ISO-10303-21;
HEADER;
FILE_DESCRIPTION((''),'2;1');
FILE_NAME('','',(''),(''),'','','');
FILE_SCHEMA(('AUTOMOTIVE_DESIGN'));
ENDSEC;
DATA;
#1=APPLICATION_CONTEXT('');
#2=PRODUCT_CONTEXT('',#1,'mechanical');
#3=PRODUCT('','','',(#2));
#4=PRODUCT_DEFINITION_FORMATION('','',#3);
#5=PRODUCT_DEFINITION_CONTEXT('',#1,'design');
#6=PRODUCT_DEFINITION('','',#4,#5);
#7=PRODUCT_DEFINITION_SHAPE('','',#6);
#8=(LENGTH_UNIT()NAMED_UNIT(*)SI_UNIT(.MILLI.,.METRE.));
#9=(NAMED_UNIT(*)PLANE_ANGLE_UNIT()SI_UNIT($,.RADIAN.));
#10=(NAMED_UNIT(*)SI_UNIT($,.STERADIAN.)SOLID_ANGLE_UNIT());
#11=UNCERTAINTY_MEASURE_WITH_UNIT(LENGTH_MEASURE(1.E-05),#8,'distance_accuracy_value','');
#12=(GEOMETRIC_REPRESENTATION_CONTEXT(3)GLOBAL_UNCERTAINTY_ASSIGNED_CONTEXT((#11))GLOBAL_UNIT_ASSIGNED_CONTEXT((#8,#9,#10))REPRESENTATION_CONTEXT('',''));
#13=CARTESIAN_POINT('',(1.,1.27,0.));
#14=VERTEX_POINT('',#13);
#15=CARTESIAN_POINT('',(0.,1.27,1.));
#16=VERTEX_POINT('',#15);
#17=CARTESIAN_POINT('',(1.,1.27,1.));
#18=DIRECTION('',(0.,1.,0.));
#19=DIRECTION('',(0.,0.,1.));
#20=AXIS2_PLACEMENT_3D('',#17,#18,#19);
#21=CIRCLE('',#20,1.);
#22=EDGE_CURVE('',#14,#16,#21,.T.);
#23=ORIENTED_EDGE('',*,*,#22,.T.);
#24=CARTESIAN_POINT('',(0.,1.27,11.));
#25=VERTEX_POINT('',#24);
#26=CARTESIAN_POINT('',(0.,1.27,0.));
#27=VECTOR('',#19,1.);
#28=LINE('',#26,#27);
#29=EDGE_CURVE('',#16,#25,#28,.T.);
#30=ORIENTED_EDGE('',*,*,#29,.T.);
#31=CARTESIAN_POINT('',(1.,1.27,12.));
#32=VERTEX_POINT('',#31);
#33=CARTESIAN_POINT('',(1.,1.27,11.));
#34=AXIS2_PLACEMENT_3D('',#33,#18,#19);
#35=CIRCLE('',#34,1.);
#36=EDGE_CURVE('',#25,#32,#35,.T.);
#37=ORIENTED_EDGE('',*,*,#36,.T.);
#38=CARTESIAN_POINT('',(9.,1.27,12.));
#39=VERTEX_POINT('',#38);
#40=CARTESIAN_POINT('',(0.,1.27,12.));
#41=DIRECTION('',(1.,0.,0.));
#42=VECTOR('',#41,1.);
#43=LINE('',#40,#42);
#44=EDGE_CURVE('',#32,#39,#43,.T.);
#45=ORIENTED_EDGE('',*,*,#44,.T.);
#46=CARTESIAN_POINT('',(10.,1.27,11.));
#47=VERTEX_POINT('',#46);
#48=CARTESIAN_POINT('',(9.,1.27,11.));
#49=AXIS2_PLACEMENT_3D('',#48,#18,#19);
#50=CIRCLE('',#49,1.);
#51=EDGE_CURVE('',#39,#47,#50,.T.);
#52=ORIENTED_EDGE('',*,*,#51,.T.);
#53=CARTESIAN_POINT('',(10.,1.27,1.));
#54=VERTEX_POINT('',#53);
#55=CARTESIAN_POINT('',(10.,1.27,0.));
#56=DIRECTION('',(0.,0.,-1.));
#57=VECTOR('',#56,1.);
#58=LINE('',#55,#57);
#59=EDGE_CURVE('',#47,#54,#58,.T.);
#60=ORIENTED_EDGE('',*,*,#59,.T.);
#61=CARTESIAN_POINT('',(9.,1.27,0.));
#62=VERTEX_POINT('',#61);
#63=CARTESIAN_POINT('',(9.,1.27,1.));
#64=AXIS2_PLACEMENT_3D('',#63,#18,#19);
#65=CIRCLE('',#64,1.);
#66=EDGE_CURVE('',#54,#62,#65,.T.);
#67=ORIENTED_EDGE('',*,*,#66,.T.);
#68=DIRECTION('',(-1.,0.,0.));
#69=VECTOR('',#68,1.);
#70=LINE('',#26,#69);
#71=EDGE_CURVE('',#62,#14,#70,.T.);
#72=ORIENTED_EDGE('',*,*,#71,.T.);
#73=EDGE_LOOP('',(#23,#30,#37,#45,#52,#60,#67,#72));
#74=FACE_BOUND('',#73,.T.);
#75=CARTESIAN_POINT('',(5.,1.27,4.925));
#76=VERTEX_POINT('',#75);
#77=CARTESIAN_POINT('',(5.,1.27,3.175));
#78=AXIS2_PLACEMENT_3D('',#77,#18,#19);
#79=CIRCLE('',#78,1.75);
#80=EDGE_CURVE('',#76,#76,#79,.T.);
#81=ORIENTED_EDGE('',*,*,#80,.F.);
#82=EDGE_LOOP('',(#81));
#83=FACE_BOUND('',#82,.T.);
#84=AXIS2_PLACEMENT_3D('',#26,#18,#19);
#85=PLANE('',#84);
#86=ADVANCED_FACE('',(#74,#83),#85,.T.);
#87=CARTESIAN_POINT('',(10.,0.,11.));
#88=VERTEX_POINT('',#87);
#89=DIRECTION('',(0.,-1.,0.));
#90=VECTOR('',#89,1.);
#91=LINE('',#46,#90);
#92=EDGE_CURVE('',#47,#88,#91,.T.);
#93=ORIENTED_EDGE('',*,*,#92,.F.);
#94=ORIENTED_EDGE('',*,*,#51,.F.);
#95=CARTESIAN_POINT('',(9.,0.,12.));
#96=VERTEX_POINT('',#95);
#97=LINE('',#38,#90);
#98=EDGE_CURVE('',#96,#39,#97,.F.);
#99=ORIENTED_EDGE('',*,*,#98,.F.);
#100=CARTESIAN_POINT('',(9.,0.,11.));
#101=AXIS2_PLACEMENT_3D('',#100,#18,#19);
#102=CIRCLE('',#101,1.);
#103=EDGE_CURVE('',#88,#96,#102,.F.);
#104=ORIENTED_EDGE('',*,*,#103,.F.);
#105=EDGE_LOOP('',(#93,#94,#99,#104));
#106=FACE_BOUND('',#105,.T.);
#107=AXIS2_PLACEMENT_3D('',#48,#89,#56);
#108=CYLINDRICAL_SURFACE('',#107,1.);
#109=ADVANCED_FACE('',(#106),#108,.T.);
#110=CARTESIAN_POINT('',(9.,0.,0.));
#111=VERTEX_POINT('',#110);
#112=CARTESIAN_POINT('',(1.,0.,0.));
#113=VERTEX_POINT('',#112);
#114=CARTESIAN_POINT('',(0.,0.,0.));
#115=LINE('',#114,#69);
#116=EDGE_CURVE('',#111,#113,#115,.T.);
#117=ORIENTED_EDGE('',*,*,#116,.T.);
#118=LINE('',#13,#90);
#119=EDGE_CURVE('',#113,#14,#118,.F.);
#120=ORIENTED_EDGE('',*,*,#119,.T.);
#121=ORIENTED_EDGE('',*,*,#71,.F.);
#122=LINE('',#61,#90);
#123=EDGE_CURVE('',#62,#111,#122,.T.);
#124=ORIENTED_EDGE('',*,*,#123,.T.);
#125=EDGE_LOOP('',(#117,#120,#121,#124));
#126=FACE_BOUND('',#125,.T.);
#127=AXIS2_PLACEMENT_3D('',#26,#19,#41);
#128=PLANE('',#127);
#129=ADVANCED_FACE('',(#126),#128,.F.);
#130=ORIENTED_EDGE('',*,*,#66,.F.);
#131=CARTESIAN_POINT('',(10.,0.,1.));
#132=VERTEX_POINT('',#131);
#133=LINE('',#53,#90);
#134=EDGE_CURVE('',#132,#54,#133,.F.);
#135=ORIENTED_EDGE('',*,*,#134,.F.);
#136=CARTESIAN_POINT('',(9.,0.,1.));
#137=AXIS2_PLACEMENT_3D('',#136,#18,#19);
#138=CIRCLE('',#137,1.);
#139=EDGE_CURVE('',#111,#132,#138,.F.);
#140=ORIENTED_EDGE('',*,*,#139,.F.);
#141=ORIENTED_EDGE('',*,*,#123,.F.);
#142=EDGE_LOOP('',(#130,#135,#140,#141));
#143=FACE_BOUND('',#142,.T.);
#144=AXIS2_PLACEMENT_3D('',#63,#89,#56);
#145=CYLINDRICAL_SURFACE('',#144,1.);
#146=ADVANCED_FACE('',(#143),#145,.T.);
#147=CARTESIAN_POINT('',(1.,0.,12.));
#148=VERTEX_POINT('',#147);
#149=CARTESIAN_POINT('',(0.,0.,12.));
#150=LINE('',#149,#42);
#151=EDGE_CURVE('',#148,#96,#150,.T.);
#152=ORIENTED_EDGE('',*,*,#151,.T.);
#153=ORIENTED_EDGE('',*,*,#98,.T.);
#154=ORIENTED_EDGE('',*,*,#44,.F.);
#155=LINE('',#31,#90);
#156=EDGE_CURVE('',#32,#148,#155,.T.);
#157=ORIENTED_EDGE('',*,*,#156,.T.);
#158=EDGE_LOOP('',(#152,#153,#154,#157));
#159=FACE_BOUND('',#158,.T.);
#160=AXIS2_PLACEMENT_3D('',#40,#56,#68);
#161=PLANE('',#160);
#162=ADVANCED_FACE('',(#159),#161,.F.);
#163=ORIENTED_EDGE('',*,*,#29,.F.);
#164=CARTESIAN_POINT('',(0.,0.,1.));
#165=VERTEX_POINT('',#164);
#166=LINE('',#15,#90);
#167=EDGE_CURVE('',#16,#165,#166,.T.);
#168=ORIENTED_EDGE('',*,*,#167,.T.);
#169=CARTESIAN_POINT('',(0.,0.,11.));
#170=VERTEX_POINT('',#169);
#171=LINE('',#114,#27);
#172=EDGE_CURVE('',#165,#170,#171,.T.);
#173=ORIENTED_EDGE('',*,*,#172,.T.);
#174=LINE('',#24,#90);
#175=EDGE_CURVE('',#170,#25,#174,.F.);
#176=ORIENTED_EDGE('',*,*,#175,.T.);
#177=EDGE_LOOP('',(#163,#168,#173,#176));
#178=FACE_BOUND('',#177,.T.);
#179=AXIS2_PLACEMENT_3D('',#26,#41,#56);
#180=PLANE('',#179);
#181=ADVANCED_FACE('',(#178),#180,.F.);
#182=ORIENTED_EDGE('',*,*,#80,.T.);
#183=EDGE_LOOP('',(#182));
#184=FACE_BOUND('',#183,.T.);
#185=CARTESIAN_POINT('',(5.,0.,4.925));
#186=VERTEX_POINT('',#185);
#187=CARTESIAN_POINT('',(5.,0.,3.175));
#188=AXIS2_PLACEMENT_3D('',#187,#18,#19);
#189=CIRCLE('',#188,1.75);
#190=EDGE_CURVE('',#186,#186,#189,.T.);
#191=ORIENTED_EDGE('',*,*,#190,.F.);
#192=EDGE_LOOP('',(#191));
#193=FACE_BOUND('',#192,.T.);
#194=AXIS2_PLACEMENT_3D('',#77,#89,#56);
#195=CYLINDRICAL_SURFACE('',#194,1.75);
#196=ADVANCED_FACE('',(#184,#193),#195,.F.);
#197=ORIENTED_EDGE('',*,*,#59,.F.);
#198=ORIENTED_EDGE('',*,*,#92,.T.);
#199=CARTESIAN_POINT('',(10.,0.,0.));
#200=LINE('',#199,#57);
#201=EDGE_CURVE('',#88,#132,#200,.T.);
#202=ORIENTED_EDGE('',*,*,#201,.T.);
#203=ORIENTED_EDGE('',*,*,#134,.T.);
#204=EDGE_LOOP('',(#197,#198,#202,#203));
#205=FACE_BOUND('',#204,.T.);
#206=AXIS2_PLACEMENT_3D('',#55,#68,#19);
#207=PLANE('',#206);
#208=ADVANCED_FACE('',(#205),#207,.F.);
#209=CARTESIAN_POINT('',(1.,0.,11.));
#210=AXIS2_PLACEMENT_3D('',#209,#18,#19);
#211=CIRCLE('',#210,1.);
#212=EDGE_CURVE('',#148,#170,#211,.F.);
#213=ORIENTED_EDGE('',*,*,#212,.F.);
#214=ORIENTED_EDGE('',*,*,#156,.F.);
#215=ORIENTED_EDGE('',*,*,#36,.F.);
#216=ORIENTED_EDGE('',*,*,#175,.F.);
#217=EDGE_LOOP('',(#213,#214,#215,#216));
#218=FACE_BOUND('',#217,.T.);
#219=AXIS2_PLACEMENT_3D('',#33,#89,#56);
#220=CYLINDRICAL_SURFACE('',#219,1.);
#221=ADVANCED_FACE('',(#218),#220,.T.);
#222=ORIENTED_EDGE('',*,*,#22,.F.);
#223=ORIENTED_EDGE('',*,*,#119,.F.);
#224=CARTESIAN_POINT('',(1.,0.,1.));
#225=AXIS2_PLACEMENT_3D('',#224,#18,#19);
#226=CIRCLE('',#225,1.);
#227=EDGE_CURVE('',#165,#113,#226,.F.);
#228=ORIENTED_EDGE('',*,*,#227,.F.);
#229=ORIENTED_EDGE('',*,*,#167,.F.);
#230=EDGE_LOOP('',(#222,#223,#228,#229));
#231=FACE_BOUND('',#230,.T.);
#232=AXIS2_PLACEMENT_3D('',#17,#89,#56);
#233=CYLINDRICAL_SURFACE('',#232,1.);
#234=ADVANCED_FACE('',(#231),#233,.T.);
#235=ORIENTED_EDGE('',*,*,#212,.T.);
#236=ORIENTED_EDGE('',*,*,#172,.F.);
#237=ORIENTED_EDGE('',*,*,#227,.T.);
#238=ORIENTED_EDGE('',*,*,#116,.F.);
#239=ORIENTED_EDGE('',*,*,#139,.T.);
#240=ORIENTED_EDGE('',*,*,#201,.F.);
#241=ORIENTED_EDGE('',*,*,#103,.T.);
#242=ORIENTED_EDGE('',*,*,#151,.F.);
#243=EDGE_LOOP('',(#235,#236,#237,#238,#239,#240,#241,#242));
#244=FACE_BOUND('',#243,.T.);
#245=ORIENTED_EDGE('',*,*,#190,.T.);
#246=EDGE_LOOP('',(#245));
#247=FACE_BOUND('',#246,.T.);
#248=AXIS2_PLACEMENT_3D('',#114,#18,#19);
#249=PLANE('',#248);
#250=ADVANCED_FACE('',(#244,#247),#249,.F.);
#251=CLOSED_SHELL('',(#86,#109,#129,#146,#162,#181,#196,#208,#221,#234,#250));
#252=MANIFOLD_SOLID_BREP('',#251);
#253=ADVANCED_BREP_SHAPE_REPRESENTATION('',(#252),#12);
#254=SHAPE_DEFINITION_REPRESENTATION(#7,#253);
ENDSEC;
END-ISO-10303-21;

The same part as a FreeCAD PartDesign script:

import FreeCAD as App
import Part
import Sketcher

V = App.Vector


def edges_at(feature, points):
    """Names of the edges that pass closest to the given points."""
    edges = feature.Shape.Edges
    near = lambda p: min(range(len(edges)), key=lambda i: edges[i].distToShape(Part.Vertex(*p))[0])
    return sorted({f"Edge{near(p) + 1}" for p in points})


def add_polygon(sketch, points):
    """Adds a closed chain of lines whose ends are joined by coincident constraints."""
    first, n = sketch.GeometryCount, len(points)
    for a, b in zip(points, points[1:] + points[:1]):
        sketch.addGeometry(Part.LineSegment(App.Vector(*a, 0), App.Vector(*b, 0)), False)
    for i in range(n):
        sketch.addConstraint(Sketcher.Constraint("Coincident", first + i, 2, first + (i + 1) % n, 1))

doc = App.newDocument("Part")
params = doc.addObject("Spreadsheet::Sheet", "Params")
for row, (alias, value) in enumerate([
    ("sketch1_diameter", "3.5 mm"),
    ("sketch1_width", "10 mm"),
    ("sketch1_height", "12 mm"),
    ("pad1_length", "1.27 mm"),
    ("fillet_radius", "1 mm"),
], start=1):
    params.set(f"A{row}", alias)
    params.set(f"B{row}", "=" + value)
    params.setAlias(f"B{row}", alias)

body = doc.addObject("PartDesign::Body", "Body")

sketch1 = body.newObject("Sketcher::SketchObject", "Sketch")
sketch1.AttachmentSupport = (doc.getObject("XZ_Plane"), [""])
sketch1.MapMode = "FlatFace"
add_polygon(sketch1, [(0, 0), (0, 12), (10, 12), (10, 0)])
sketch1.addGeometry(Part.Circle(V(5, 3.2, 0), V(0, 0, 1), 1.8), False)
sketch1.addConstraint([
    Sketcher.Constraint("Vertical", 0),
    Sketcher.Constraint("Horizontal", 1),
    Sketcher.Constraint("Vertical", 2),
    Sketcher.Constraint("Horizontal", 3),
    Sketcher.Constraint("Coincident", 3, 2, -1, 1),
    Sketcher.Constraint("Diameter", 4, 3.5),
    Sketcher.Constraint("DistanceX", 1, 1, 1, 2, 10.0),
    Sketcher.Constraint("DistanceY", 0, 1, 0, 2, 12.0),
    Sketcher.Constraint("DistanceX", -1, 1, 4, 3, 5.0),
    Sketcher.Constraint("DistanceY", -1, 1, 4, 3, 3.175),
])
sketch1.setExpression("Constraints[9]", "Params.sketch1_diameter")
sketch1.setExpression("Constraints[10]", "Params.sketch1_width")
sketch1.setExpression("Constraints[11]", "Params.sketch1_height")
pad1 = body.newObject("PartDesign::Pad", "Pad")
pad1.Profile = sketch1
pad1.setExpression("Length", "Params.pad1_length")
pad1.Reversed = True
doc.recompute()

fillet = body.newObject("PartDesign::Fillet", "Fillet")
fillet.Base = (pad1, edges_at(pad1, [
    (0, 0.635, 0),
    (10, 0.635, 0),
    (10, 0.635, 12),
    (0, 0.635, 12),
]))
fillet.setExpression("Radius", "Params.fillet_radius")

doc.recompute()
